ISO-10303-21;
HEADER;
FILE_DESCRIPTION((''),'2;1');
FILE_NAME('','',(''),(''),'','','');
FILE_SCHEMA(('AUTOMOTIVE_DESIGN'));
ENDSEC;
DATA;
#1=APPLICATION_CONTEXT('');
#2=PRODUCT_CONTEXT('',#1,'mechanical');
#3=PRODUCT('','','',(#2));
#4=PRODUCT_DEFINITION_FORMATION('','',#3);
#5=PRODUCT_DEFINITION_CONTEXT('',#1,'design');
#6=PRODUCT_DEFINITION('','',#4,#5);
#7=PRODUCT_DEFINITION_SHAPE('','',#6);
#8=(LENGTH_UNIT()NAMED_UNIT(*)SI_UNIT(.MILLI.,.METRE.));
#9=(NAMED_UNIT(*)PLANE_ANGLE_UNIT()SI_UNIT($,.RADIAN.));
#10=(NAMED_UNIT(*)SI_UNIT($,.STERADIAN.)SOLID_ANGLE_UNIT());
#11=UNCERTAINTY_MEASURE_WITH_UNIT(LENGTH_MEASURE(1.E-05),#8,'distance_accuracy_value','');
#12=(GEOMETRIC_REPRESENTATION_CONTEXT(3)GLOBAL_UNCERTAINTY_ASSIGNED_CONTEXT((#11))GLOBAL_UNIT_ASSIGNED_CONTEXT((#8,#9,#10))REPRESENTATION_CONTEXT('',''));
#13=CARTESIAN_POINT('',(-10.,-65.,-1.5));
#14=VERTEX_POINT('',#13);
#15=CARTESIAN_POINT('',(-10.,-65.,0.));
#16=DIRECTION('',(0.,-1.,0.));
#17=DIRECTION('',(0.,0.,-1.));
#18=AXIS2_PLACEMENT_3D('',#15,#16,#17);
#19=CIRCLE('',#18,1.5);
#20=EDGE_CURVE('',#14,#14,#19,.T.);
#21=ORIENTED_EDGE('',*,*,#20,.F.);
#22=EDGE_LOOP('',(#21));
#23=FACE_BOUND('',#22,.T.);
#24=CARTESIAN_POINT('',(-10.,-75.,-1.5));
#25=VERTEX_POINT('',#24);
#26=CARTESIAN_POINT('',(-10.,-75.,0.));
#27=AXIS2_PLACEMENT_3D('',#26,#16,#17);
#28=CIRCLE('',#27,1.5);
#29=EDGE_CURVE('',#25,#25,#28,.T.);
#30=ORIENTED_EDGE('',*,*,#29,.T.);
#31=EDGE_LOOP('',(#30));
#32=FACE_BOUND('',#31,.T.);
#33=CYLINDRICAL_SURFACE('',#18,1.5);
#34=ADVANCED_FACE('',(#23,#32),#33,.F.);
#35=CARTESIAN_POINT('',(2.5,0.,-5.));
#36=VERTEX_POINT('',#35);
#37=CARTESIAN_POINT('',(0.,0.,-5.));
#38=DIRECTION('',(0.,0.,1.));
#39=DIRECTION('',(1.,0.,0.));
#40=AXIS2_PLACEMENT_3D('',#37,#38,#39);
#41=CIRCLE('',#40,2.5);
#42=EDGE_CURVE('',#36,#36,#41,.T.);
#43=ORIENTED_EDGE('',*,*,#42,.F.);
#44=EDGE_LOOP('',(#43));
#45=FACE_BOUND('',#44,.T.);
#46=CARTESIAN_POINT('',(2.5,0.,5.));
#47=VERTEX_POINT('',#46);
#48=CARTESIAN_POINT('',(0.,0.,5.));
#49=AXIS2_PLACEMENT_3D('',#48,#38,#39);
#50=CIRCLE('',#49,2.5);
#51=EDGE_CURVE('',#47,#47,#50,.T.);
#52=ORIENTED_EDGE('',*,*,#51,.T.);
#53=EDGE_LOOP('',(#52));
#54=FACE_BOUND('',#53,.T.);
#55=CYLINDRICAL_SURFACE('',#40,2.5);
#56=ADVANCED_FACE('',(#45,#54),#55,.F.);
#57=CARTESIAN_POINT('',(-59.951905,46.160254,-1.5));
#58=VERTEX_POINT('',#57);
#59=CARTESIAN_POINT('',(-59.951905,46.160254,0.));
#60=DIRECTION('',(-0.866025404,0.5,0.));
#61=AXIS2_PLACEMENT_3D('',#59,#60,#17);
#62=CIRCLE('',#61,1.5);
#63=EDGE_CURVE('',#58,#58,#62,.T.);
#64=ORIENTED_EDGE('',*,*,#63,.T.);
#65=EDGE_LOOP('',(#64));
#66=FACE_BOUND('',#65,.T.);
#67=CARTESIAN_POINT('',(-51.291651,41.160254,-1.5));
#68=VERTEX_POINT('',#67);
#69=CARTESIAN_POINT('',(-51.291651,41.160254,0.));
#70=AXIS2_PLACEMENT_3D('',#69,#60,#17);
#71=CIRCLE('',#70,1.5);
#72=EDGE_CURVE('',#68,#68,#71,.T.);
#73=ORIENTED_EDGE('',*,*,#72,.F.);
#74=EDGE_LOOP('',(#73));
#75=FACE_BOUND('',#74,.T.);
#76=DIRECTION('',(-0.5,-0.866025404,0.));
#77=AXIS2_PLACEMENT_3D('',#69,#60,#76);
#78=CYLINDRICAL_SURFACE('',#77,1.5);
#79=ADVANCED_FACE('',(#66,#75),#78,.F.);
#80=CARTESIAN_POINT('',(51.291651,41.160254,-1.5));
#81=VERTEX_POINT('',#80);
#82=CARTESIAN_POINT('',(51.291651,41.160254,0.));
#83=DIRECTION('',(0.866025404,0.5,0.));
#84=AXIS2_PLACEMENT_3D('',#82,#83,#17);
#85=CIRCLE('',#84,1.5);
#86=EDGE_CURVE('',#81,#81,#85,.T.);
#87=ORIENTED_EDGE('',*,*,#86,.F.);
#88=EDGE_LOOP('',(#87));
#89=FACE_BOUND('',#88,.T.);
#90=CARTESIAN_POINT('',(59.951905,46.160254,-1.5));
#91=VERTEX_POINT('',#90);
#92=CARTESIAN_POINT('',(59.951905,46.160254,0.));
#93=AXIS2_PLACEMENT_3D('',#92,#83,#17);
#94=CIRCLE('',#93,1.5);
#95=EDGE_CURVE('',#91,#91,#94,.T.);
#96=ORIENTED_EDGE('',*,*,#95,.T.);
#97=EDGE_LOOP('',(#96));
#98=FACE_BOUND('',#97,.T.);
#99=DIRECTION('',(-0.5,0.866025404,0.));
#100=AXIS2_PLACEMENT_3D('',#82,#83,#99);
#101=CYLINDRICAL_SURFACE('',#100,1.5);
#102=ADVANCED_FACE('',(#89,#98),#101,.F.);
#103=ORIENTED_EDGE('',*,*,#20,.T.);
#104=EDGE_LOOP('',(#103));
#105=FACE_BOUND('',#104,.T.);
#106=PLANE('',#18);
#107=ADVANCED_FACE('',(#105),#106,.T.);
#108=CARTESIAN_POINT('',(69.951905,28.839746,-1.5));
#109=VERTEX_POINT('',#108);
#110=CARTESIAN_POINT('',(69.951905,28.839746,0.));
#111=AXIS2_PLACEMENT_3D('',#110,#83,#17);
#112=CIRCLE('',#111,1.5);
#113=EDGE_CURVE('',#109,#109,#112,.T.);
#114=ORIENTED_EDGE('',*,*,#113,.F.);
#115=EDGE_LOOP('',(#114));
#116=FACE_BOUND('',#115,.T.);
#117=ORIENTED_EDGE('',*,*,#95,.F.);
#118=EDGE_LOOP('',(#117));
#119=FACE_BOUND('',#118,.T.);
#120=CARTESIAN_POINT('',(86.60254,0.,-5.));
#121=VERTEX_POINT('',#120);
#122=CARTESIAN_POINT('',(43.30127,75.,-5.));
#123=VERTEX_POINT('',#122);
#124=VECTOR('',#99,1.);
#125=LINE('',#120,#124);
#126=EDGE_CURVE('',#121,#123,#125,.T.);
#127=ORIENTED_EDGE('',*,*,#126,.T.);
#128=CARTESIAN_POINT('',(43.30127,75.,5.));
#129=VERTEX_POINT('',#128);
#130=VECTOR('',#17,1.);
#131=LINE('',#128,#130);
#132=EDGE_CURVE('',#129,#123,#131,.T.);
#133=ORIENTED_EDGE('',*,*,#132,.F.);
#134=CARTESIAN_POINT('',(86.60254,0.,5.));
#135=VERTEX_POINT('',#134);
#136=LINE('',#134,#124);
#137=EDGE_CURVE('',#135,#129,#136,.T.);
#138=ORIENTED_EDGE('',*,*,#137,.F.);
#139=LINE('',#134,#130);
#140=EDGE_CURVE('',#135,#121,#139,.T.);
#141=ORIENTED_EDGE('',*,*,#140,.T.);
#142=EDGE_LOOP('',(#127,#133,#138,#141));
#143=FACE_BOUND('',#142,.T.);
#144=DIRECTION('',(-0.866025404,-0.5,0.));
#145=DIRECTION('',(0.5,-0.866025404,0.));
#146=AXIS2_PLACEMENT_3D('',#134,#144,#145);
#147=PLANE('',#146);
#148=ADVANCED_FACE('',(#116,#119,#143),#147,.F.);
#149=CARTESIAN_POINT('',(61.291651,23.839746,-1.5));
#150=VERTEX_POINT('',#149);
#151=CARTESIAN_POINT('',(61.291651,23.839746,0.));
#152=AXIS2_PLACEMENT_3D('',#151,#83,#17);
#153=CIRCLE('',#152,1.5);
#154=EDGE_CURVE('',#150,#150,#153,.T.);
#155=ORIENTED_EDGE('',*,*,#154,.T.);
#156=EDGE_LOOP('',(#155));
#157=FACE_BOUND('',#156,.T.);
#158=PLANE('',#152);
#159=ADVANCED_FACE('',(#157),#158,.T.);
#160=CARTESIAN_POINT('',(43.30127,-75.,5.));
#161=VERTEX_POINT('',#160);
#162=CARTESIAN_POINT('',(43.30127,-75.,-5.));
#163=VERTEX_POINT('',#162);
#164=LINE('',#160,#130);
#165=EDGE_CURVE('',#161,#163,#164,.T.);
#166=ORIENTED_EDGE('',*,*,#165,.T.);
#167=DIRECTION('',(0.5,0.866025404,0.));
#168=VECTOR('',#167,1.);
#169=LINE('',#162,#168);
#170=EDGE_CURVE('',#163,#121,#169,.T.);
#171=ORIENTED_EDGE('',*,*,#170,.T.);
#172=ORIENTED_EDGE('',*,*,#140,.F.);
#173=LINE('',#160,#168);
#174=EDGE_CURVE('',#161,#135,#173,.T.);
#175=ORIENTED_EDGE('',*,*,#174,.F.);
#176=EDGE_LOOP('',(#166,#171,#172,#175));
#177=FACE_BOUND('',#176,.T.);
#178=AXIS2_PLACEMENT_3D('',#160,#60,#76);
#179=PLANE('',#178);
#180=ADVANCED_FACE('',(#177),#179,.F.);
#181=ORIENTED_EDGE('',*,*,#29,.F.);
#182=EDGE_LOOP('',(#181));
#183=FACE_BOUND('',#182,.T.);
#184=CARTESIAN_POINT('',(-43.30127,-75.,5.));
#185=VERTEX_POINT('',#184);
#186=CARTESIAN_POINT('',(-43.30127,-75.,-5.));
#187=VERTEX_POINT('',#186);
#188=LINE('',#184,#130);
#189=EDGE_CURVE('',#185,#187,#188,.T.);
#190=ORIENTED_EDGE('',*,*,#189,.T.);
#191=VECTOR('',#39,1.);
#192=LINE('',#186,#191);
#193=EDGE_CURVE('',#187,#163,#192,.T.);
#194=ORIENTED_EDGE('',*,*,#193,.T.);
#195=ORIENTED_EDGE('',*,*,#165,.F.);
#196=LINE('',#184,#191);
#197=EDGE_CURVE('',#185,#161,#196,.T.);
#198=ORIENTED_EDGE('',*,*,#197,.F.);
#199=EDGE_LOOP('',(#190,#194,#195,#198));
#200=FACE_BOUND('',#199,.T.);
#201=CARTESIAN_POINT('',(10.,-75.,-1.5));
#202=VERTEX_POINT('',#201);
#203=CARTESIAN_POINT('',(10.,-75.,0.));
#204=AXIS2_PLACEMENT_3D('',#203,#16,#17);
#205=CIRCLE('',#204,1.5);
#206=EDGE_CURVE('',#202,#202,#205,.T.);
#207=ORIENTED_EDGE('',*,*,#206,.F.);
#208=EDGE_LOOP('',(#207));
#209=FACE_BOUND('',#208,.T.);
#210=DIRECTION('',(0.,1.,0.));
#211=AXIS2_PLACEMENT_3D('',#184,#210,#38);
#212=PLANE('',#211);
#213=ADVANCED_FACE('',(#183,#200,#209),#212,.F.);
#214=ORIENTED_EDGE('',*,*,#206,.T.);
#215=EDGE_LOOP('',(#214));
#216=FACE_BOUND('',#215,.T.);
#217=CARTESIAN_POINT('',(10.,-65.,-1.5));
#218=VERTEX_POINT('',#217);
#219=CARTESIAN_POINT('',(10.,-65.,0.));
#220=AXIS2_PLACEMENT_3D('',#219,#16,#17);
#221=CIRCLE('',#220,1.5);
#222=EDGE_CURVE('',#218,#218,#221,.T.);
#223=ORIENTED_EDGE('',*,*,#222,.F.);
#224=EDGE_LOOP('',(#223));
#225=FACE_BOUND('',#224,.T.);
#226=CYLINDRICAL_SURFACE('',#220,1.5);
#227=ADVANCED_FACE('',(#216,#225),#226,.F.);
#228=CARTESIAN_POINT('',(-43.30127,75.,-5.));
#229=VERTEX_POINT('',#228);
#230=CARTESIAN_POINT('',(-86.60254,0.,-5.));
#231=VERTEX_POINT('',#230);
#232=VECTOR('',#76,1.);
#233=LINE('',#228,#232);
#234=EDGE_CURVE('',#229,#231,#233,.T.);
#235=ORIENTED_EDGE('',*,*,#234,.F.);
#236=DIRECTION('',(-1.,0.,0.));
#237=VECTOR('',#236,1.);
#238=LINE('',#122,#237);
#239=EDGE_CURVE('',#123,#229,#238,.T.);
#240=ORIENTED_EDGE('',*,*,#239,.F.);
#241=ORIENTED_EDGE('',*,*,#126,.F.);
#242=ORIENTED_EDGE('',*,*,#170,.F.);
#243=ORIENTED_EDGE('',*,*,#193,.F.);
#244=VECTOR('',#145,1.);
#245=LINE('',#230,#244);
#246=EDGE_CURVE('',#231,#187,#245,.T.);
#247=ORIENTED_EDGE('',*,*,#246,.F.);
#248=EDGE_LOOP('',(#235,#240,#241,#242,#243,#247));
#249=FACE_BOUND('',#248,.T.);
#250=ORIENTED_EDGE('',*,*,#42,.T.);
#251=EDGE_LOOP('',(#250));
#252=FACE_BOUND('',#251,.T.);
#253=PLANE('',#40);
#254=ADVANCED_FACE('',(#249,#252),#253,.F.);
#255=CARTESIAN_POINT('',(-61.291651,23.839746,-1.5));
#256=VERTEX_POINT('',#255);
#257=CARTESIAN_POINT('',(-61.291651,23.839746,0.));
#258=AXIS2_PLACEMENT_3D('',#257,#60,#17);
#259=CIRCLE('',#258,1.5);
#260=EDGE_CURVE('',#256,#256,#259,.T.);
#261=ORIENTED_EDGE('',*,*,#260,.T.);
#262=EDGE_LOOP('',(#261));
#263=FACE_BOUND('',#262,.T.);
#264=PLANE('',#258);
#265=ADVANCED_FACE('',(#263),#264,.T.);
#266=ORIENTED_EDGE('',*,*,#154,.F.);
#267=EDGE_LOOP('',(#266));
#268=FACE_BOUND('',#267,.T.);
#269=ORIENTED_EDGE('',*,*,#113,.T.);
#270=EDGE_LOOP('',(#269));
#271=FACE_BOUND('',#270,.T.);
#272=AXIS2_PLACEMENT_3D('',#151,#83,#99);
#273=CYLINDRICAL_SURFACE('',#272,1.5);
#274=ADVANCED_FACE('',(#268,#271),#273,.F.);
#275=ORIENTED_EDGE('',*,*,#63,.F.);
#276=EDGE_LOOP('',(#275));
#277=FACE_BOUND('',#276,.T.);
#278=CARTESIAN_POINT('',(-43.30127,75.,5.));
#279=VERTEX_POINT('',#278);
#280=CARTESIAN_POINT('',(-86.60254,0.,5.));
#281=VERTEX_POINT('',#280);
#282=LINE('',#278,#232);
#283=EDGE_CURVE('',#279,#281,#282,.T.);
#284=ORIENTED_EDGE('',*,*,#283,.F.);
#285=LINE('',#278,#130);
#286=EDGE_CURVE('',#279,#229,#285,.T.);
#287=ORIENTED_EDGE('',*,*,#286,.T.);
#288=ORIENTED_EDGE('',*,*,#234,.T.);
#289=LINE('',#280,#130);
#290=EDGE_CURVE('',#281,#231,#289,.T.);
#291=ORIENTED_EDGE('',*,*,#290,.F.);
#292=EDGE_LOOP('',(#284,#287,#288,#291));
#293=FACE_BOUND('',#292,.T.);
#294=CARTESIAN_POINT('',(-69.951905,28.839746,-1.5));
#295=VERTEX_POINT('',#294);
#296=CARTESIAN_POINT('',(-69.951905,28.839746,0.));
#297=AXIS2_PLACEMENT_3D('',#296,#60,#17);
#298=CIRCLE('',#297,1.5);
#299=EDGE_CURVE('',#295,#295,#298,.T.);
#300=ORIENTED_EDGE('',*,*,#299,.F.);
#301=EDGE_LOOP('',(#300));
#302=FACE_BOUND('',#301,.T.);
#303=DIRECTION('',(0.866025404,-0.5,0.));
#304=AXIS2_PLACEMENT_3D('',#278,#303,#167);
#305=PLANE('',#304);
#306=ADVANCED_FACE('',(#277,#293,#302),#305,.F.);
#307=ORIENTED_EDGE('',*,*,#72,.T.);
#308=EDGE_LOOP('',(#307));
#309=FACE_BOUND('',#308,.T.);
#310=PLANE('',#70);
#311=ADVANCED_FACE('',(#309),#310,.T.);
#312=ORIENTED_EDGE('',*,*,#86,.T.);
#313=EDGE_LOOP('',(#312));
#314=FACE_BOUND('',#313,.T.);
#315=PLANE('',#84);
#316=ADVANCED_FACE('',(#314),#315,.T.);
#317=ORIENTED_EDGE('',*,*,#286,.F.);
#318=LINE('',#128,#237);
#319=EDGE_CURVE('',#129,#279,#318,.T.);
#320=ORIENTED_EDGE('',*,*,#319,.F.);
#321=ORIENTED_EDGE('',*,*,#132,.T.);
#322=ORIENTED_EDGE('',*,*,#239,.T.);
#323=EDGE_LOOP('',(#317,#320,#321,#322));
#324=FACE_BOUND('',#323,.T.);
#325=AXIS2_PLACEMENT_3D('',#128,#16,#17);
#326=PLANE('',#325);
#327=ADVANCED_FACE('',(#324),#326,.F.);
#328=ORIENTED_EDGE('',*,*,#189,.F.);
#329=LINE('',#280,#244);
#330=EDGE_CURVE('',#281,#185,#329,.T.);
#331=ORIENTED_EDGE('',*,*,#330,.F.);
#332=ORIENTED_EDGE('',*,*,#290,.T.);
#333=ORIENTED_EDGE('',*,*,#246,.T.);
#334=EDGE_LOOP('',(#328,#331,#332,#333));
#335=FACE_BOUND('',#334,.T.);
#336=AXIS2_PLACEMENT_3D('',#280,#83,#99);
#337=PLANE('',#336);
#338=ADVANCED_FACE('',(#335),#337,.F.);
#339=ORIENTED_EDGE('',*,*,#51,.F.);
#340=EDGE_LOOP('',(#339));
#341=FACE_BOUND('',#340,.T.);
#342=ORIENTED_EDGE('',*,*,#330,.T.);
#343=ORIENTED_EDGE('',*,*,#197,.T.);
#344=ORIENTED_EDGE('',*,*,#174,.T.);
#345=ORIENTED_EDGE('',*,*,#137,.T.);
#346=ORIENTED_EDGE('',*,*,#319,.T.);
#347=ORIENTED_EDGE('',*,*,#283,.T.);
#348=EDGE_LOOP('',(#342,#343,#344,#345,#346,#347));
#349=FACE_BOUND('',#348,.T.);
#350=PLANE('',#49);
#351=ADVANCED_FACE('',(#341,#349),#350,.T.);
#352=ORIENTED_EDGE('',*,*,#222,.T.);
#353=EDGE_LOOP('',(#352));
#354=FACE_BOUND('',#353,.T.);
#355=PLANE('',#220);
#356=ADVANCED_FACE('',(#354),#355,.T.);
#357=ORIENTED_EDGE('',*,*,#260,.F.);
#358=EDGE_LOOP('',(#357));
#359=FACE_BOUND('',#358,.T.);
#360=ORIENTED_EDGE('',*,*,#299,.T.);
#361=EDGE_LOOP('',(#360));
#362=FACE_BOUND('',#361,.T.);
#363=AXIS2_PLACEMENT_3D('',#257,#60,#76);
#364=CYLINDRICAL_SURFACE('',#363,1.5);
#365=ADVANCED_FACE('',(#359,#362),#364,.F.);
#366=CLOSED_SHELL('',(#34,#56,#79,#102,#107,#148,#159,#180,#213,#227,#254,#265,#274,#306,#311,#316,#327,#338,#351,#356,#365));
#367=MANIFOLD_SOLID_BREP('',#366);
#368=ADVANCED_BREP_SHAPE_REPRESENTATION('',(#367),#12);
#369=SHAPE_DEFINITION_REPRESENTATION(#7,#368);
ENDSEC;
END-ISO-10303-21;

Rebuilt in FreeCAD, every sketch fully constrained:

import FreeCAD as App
import Part
import Sketcher
from FreeCAD import Vector
Q = App.Units.Quantity

doc = App.newDocument("Part")
body = doc.addObject("PartDesign::Body", "Body")

# Sketch on XY plane
sketch1 = body.newObject("Sketcher::SketchObject", "Sketch")
sketch1.AttachmentSupport = (doc.getObject("XY_Plane"), [""])
sketch1.MapMode = "FlatFace"
sketch1.addGeometry([
    Part.LineSegment(Vector(87, 0, 0), Vector(43, 75, 0)),  # 0
    Part.LineSegment(Vector(43, 75, 0), Vector(-43, 75, 0)),  # 1
    Part.LineSegment(Vector(-43, 75, 0), Vector(-87, 0, 0)),  # 2
    Part.LineSegment(Vector(-87, 0, 0), Vector(-43, -75, 0)),  # 3
    Part.LineSegment(Vector(-43, -75, 0), Vector(43, -75, 0)),  # 4
    Part.LineSegment(Vector(43, -75, 0), Vector(87, 0, 0)),  # 5
], False)
sketch1.addConstraint([
    Sketcher.Constraint("Coincident", 0, 2, 1, 1),
    Sketcher.Constraint("Coincident", 1, 2, 2, 1),
    Sketcher.Constraint("Coincident", 2, 2, 3, 1),
    Sketcher.Constraint("Coincident", 3, 2, 4, 1),
    Sketcher.Constraint("Coincident", 4, 2, 5, 1),
    Sketcher.Constraint("Coincident", 5, 2, 0, 1),
    Sketcher.Constraint("Horizontal", 1),
    Sketcher.Constraint("Horizontal", 4),
    Sketcher.Constraint("Symmetric", 0, 2, 3, 2, -1, 1),
    Sketcher.Constraint("Symmetric", 2, 2, 5, 2, -1, 1),
    Sketcher.Constraint("PointOnObject", 2, 2, -1),
    Sketcher.Constraint("Parallel", 2, 5),
    Sketcher.Constraint("Vertical", 1, 2, 3, 2),
    Sketcher.Constraint("Angle", 0, Q("120 deg")),
    Sketcher.Constraint("DistanceY", -1, 1, 0, 2, 75.0),
    Sketcher.Constraint("DistanceX", 1, 2, 1, 1, 86.60254),
])
pad1 = body.newObject("PartDesign::Pad", "Pad")
pad1.Profile = sketch1
pad1.Length = 10
pad1.Midplane = True

# Sketch on XZ plane
sketch2 = body.newObject("Sketcher::SketchObject", "Sketch001")
sketch2.AttachmentSupport = (doc.getObject("XZ_Plane"), [""])
sketch2.MapMode = "FlatFace"
sketch2.AttachmentOffset = App.Placement(Vector(0, 0, 75), App.Rotation())
sketch2.addGeometry([
    Part.Circle(Vector(-10, 0, 0), Vector(0, 0, 1), 1.5),
    Part.Circle(Vector(10, 0, 0), Vector(0, 0, 1), 1.5),
], False)
sketch2.addConstraint([
    Sketcher.Constraint("Equal", 0, 1),
    Sketcher.Constraint("Symmetric", 0, 3, 1, 3, -1, 1),
    Sketcher.Constraint("PointOnObject", 0, 3, -1),
    Sketcher.Constraint("Diameter", 0, 3.0),
    Sketcher.Constraint("DistanceX", 0, 3, -1, 1, 10.0),
])
pocket1 = body.newObject("PartDesign::Pocket", "Pocket")
pocket1.Profile = sketch2
pocket1.Length = 10

# Sketch on XY plane
sketch3 = body.newObject("Sketcher::SketchObject", "Sketch002")
sketch3.AttachmentSupport = (doc.getObject("XY_Plane"), [""])
sketch3.MapMode = "FlatFace"
sketch3.AttachmentOffset = App.Placement(Vector(0, 0, 5), App.Rotation())
sketch3.addGeometry(Part.Circle(Vector(0, 0, 0), Vector(0, 0, 1), 2.5), False)
sketch3.addConstraint([
    Sketcher.Constraint("Coincident", 0, 3, -1, 1),
    Sketcher.Constraint("Diameter", 0, 5.0),
])
pocket2 = body.newObject("PartDesign::Pocket", "Pocket001")
pocket2.Profile = sketch3
pocket2.Length = 10
doc.recompute()

polarpattern = body.newObject("PartDesign::PolarPattern", "PolarPattern")
polarpattern.Originals = [pocket1]
polarpattern.Axis = (doc.getObject("Z_Axis"), [""])
polarpattern.Angle = 360
polarpattern.Occurrences = 3
body.Tip = polarpattern

doc.recompute()
